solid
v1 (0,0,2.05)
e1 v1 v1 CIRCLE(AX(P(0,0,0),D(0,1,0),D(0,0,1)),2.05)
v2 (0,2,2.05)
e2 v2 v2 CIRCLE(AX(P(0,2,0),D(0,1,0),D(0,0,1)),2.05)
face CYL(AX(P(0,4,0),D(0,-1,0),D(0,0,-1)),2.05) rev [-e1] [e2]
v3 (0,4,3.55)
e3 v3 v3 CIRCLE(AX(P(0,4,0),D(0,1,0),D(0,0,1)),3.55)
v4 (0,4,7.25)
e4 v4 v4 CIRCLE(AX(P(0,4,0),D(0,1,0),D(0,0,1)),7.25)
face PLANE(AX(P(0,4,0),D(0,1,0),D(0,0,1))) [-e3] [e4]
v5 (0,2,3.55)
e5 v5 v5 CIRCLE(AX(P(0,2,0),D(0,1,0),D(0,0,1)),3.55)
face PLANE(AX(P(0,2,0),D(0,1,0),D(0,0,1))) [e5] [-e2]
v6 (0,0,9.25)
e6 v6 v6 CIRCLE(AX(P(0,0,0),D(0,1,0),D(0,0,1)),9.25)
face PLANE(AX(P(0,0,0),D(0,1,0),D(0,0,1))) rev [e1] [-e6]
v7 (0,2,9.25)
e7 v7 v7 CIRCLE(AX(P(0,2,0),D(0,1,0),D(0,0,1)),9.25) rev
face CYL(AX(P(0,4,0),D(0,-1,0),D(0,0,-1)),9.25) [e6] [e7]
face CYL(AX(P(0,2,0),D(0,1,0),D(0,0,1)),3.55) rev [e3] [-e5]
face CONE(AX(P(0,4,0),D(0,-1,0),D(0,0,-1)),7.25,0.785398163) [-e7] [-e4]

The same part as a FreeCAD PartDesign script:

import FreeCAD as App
import Part
import Sketcher
from FreeCAD import Vector
Q = App.Units.Quantity


def edges_at(feature, points):
    """Names of the edges that pass closest to the given points."""
    edges = feature.Shape.Edges
    near = lambda p: min(range(len(edges)), key=lambda i: edges[i].distToShape(Part.Vertex(*p))[0])
    return sorted({f"Edge{near(p) + 1}" for p in points})

doc = App.newDocument("Part")
params = doc.addObject("Spreadsheet::Sheet", "Params")
for row, (alias, value) in enumerate([
    ("sketch1_diameter", "18.5 mm"),
    ("sketch1_diameter2", "4.1 mm"),
    ("pad1_length", "4 mm"),
    ("sketch2_diameter", "7.1 mm"),
    ("pocket1_length", "2 mm"),
    ("chamfer_size", "2 mm"),
], start=1):
    params.set(f"A{row}", alias)
    params.set(f"B{row}", "=" + value)
    params.setAlias(f"B{row}", alias)

body = doc.addObject("PartDesign::Body", "Body")

sketch1 = body.newObject("Sketcher::SketchObject", "Sketch")
sketch1.AttachmentSupport = (doc.getObject("XZ_Plane"), [""])
sketch1.MapMode = "FlatFace"
sketch1.addGeometry([
    Part.Circle(Vector(0, 0, 0), Vector(0, 0, 1), 9.2),
    Part.Circle(Vector(0, 0, 0), Vector(0, 0, 1), 2),
], False)
sketch1.addConstraint([
    Sketcher.Constraint("Coincident", 0, 3, -1, 1),
    Sketcher.Constraint("Coincident", 1, 3, -1, 1),
    Sketcher.Constraint("Diameter", 0, Q("18.5 mm")),
    Sketcher.Constraint("Diameter", 1, Q("4.1 mm")),
])
sketch1.setExpression("Constraints[2]", "Params.sketch1_diameter")
sketch1.setExpression("Constraints[3]", "Params.sketch1_diameter2")
pad1 = body.newObject("PartDesign::Pad", "Pad")
pad1.Profile = sketch1
pad1.setExpression("Length", "Params.pad1_length")
pad1.Reversed = True

sketch2 = body.newObject("Sketcher::SketchObject", "Sketch001")
sketch2.AttachmentSupport = (doc.getObject("XZ_Plane"), [""])
sketch2.MapMode = "FlatFace"
sketch2.AttachmentOffset = App.Placement(Vector(0, 0, -4), App.Rotation())
sketch2.addGeometry(Part.Circle(Vector(0, 0, 0), Vector(0, 0, 1), 3.5), False)
sketch2.addConstraint([
    Sketcher.Constraint("Coincident", 0, 3, -1, 1),
    Sketcher.Constraint("Diameter", 0, Q("7.1 mm")),
])
sketch2.setExpression("Constraints[1]", "Params.sketch2_diameter")
pocket1 = body.newObject("PartDesign::Pocket", "Pocket")
pocket1.Profile = sketch2
pocket1.setExpression("Length", "Params.pocket1_length")
pocket1.Reversed = True
doc.recompute()

chamfer = body.newObject("PartDesign::Chamfer", "Chamfer")
chamfer.Base = (pocket1, edges_at(pocket1, [(0, 4, -9.25)]))
chamfer.setExpression("Size", "Params.chamfer_size")

doc.recompute()
